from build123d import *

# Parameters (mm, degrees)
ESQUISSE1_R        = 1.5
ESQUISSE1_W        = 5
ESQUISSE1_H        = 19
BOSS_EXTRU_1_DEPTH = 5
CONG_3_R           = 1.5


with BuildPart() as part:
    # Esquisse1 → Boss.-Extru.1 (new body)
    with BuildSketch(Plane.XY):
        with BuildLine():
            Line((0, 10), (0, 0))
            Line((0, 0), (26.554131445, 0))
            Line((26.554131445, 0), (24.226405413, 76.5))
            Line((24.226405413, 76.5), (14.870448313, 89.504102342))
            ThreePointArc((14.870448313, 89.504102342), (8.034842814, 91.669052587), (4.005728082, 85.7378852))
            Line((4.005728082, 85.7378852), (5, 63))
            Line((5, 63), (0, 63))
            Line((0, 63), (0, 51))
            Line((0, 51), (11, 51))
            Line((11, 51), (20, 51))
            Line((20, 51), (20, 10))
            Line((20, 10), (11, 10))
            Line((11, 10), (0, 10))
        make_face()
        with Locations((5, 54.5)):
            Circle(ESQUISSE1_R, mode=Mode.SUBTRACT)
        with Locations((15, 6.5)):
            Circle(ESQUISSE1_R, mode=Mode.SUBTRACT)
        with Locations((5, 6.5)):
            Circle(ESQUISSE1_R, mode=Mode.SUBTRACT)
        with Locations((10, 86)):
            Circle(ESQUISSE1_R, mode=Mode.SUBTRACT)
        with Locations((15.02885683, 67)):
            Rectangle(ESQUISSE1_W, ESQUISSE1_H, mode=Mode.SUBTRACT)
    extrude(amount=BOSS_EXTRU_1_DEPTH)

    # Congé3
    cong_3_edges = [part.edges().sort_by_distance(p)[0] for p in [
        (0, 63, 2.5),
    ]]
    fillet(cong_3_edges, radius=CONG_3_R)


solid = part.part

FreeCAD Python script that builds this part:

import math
import FreeCAD as App
import Part
import Sketcher
from FreeCAD import Vector
Q = App.Units.Quantity


def edges_at(feature, points):
    """Names of the edges that pass closest to the given points."""
    edges = feature.Shape.Edges
    near = lambda p: min(range(len(edges)), key=lambda i: edges[i].distToShape(Part.Vertex(*p))[0])
    return sorted({f"Edge{near(p) + 1}" for p in points})


def add_polygon(sketch, points):
    """Adds a closed chain of lines whose ends are joined by coincident constraints."""
    first, n = sketch.GeometryCount, len(points)
    for a, b in zip(points, points[1:] + points[:1]):
        sketch.addGeometry(Part.LineSegment(App.Vector(*a, 0), App.Vector(*b, 0)), False)
    for i in range(n):
        sketch.addConstraint(Sketcher.Constraint("Coincident", first + i, 2, first + (i + 1) % n, 1))

doc = App.newDocument("Part")
body = doc.addObject("PartDesign::Body", "Body")

# Sketch on XY plane
sketch1 = body.newObject("Sketcher::SketchObject", "Sketch")
sketch1.AttachmentSupport = (doc.getObject("XY_Plane"), [""])
sketch1.MapMode = "FlatFace"
sketch1.addGeometry(Part.LineSegment(Vector(0, 10, 0), Vector(0, 0, 0)), False)  # 0
sketch1.addGeometry(Part.LineSegment(Vector(0, 0, 0), Vector(26.554131, 0, 0)), False)  # 1
sketch1.addGeometry(Part.LineSegment(Vector(26.554131, 0, 0), Vector(24.226405, 76.5, 0)), False)  # 2
sketch1.addGeometry(Part.LineSegment(Vector(24.226405, 76.5, 0), Vector(14.870448, 89.504102, 0)), False)  # 3
sketch1.addGeometry(Part.ArcOfCircle(Part.Circle(Vector(10, 86, 0), Vector(0, 0, 1), 6), math.radians(35.73358), math.radians(182.503809)), False)  # 4
sketch1.addGeometry(Part.LineSegment(Vector(4.005728, 85.737885, 0), Vector(5, 63, 0)), False)  # 5
sketch1.addGeometry(Part.LineSegment(Vector(5, 63, 0), Vector(0, 63, 0)), False)  # 6
sketch1.addGeometry(Part.LineSegment(Vector(0, 63, 0), Vector(0, 51, 0)), False)  # 7
sketch1.addGeometry(Part.LineSegment(Vector(0, 51, 0), Vector(20, 51, 0)), False)  # 8
sketch1.addGeometry(Part.LineSegment(Vector(20, 51, 0), Vector(20, 10, 0)), False)  # 9
sketch1.addGeometry(Part.LineSegment(Vector(20, 10, 0), Vector(0, 10, 0)), False)  # 10
sketch1.addGeometry(Part.Circle(Vector(5, 6.5, 0), Vector(0, 0, 1), 1.5), False)  # 11
sketch1.addGeometry(Part.Circle(Vector(15, 6.5, 0), Vector(0, 0, 1), 1.5), False)  # 12
sketch1.addGeometry(Part.Circle(Vector(5, 54.5, 0), Vector(0, 0, 1), 1.5), False)  # 13
sketch1.addGeometry(Part.Circle(Vector(10, 86, 0), Vector(0, 0, 1), 1.5), False)  # 14
add_polygon(sketch1, [(17.528857, 57.5), (12.528857, 57.5), (12.528857, 76.5), (17.528857, 76.5)])  # lines 15-18
sketch1.addConstraint(Sketcher.Constraint("Coincident", 0, 2, 1, 1))
sketch1.addConstraint(Sketcher.Constraint("Coincident", 1, 2, 2, 1))
sketch1.addConstraint(Sketcher.Constraint("Coincident", 2, 2, 3, 1))
sketch1.addConstraint(Sketcher.Constraint("Tangent", 3, 2, 4, 1))
sketch1.addConstraint(Sketcher.Constraint("Tangent", 4, 2, 5, 1))
sketch1.addConstraint(Sketcher.Constraint("Coincident", 5, 2, 6, 1))
sketch1.addConstraint(Sketcher.Constraint("Coincident", 6, 2, 7, 1))
sketch1.addConstraint(Sketcher.Constraint("Coincident", 7, 2, 8, 1))
sketch1.addConstraint(Sketcher.Constraint("Coincident", 8, 2, 9, 1))
sketch1.addConstraint(Sketcher.Constraint("Coincident", 9, 2, 10, 1))
sketch1.addConstraint(Sketcher.Constraint("Coincident", 10, 2, 0, 1))
sketch1.addConstraint(Sketcher.Constraint("Vertical", 0))
sketch1.addConstraint(Sketcher.Constraint("Horizontal", 1))
sketch1.addConstraint(Sketcher.Constraint("Horizontal", 6))
sketch1.addConstraint(Sketcher.Constraint("Vertical", 7))
sketch1.addConstraint(Sketcher.Constraint("Horizontal", 8))
sketch1.addConstraint(Sketcher.Constraint("Vertical", 9))
sketch1.addConstraint(Sketcher.Constraint("Horizontal", 10))
sketch1.addConstraint(Sketcher.Constraint("Horizontal", 15))
sketch1.addConstraint(Sketcher.Constraint("Vertical", 16))
sketch1.addConstraint(Sketcher.Constraint("Horizontal", 17))
sketch1.addConstraint(Sketcher.Constraint("Vertical", 18))
sketch1.addConstraint(Sketcher.Constraint("Coincident", 0, 2, -1, 1))
sketch1.addConstraint(Sketcher.Constraint("Coincident", 14, 3, 4, 3))
sketch1.addConstraint(Sketcher.Constraint("Equal", 11, 12))
sketch1.addConstraint(Sketcher.Constraint("Equal", 12, 13))
sketch1.addConstraint(Sketcher.Constraint("Equal", 13, 14))
sketch1.addConstraint(Sketcher.Constraint("PointOnObject", 6, 2, -2))
sketch1.addConstraint(Sketcher.Constraint("Horizontal", 11, 3, 12, 3))
sketch1.addConstraint(Sketcher.Constraint("Horizontal", 2, 2, 16, 2))
sketch1.addConstraint(Sketcher.Constraint("Vertical", 11, 3, 13, 3))
sketch1.addConstraint(Sketcher.Constraint("Vertical", 13, 3, 5, 2))
sketch1.addConstraint(Sketcher.Constraint("Equal", 6, 15))
sketch1.addConstraint(Sketcher.Constraint("Diameter", 11, Q("3 mm")))
sketch1.addConstraint(Sketcher.Constraint("Radius", 4, Q("6 mm")))
sketch1.addConstraint(Sketcher.Constraint("DistanceX", 6, 2, 6, 1, Q("5 mm")))
sketch1.addConstraint(Sketcher.Constraint("DistanceX", 8, 1, 8, 2, Q("20 mm")))
sketch1.addConstraint(Sketcher.Constraint("DistanceY", 0, 2, 0, 1, Q("10 mm")))
sketch1.addConstraint(Sketcher.Constraint("DistanceY", 7, 2, 7, 1, Q("12 mm")))
sketch1.addConstraint(Sketcher.Constraint("DistanceY", 9, 2, 9, 1, Q("41 mm")))
sketch1.addConstraint(Sketcher.Constraint("DistanceY", 16, 1, 16, 2, Q("19 mm")))
sketch1.addConstraint(Sketcher.Constraint("DistanceX", -1, 1, 4, 3, Q("10 mm")))
sketch1.addConstraint(Sketcher.Constraint("DistanceY", -1, 1, 4, 3, Q("86 mm")))
sketch1.addConstraint(Sketcher.Constraint("DistanceX", -1, 1, 12, 3, Q("15 mm")))
sketch1.addConstraint(Sketcher.Constraint("DistanceY", 11, 3, 13, 3, Q("48 mm")))
sketch1.addConstraint(Sketcher.Constraint("DistanceY", 13, 3, 2, 2, Q("22 mm")))
sketch1.addConstraint(Sketcher.Constraint("DistanceY", -1, 1, 11, 3, Q("6.5 mm")))
sketch1.addConstraint(Sketcher.Constraint("DistanceX", 1, 1, 1, 2, Q("26.554131 mm")))
sketch1.addConstraint(Sketcher.Constraint("DistanceX", -1, 1, 3, 2, Q("14.870448 mm")))
sketch1.addConstraint(Sketcher.Constraint("DistanceX", 16, 2, 2, 2, Q("11.697549 mm")))
pad1 = body.newObject("PartDesign::Pad", "Pad")
pad1.Profile = sketch1
pad1.Length = 5
doc.recompute()

fillet = body.newObject("PartDesign::Fillet", "Fillet")
fillet.Base = (pad1, edges_at(pad1, [(0, 63, 2.5)]))
fillet.Radius = 1.5

doc.recompute()
